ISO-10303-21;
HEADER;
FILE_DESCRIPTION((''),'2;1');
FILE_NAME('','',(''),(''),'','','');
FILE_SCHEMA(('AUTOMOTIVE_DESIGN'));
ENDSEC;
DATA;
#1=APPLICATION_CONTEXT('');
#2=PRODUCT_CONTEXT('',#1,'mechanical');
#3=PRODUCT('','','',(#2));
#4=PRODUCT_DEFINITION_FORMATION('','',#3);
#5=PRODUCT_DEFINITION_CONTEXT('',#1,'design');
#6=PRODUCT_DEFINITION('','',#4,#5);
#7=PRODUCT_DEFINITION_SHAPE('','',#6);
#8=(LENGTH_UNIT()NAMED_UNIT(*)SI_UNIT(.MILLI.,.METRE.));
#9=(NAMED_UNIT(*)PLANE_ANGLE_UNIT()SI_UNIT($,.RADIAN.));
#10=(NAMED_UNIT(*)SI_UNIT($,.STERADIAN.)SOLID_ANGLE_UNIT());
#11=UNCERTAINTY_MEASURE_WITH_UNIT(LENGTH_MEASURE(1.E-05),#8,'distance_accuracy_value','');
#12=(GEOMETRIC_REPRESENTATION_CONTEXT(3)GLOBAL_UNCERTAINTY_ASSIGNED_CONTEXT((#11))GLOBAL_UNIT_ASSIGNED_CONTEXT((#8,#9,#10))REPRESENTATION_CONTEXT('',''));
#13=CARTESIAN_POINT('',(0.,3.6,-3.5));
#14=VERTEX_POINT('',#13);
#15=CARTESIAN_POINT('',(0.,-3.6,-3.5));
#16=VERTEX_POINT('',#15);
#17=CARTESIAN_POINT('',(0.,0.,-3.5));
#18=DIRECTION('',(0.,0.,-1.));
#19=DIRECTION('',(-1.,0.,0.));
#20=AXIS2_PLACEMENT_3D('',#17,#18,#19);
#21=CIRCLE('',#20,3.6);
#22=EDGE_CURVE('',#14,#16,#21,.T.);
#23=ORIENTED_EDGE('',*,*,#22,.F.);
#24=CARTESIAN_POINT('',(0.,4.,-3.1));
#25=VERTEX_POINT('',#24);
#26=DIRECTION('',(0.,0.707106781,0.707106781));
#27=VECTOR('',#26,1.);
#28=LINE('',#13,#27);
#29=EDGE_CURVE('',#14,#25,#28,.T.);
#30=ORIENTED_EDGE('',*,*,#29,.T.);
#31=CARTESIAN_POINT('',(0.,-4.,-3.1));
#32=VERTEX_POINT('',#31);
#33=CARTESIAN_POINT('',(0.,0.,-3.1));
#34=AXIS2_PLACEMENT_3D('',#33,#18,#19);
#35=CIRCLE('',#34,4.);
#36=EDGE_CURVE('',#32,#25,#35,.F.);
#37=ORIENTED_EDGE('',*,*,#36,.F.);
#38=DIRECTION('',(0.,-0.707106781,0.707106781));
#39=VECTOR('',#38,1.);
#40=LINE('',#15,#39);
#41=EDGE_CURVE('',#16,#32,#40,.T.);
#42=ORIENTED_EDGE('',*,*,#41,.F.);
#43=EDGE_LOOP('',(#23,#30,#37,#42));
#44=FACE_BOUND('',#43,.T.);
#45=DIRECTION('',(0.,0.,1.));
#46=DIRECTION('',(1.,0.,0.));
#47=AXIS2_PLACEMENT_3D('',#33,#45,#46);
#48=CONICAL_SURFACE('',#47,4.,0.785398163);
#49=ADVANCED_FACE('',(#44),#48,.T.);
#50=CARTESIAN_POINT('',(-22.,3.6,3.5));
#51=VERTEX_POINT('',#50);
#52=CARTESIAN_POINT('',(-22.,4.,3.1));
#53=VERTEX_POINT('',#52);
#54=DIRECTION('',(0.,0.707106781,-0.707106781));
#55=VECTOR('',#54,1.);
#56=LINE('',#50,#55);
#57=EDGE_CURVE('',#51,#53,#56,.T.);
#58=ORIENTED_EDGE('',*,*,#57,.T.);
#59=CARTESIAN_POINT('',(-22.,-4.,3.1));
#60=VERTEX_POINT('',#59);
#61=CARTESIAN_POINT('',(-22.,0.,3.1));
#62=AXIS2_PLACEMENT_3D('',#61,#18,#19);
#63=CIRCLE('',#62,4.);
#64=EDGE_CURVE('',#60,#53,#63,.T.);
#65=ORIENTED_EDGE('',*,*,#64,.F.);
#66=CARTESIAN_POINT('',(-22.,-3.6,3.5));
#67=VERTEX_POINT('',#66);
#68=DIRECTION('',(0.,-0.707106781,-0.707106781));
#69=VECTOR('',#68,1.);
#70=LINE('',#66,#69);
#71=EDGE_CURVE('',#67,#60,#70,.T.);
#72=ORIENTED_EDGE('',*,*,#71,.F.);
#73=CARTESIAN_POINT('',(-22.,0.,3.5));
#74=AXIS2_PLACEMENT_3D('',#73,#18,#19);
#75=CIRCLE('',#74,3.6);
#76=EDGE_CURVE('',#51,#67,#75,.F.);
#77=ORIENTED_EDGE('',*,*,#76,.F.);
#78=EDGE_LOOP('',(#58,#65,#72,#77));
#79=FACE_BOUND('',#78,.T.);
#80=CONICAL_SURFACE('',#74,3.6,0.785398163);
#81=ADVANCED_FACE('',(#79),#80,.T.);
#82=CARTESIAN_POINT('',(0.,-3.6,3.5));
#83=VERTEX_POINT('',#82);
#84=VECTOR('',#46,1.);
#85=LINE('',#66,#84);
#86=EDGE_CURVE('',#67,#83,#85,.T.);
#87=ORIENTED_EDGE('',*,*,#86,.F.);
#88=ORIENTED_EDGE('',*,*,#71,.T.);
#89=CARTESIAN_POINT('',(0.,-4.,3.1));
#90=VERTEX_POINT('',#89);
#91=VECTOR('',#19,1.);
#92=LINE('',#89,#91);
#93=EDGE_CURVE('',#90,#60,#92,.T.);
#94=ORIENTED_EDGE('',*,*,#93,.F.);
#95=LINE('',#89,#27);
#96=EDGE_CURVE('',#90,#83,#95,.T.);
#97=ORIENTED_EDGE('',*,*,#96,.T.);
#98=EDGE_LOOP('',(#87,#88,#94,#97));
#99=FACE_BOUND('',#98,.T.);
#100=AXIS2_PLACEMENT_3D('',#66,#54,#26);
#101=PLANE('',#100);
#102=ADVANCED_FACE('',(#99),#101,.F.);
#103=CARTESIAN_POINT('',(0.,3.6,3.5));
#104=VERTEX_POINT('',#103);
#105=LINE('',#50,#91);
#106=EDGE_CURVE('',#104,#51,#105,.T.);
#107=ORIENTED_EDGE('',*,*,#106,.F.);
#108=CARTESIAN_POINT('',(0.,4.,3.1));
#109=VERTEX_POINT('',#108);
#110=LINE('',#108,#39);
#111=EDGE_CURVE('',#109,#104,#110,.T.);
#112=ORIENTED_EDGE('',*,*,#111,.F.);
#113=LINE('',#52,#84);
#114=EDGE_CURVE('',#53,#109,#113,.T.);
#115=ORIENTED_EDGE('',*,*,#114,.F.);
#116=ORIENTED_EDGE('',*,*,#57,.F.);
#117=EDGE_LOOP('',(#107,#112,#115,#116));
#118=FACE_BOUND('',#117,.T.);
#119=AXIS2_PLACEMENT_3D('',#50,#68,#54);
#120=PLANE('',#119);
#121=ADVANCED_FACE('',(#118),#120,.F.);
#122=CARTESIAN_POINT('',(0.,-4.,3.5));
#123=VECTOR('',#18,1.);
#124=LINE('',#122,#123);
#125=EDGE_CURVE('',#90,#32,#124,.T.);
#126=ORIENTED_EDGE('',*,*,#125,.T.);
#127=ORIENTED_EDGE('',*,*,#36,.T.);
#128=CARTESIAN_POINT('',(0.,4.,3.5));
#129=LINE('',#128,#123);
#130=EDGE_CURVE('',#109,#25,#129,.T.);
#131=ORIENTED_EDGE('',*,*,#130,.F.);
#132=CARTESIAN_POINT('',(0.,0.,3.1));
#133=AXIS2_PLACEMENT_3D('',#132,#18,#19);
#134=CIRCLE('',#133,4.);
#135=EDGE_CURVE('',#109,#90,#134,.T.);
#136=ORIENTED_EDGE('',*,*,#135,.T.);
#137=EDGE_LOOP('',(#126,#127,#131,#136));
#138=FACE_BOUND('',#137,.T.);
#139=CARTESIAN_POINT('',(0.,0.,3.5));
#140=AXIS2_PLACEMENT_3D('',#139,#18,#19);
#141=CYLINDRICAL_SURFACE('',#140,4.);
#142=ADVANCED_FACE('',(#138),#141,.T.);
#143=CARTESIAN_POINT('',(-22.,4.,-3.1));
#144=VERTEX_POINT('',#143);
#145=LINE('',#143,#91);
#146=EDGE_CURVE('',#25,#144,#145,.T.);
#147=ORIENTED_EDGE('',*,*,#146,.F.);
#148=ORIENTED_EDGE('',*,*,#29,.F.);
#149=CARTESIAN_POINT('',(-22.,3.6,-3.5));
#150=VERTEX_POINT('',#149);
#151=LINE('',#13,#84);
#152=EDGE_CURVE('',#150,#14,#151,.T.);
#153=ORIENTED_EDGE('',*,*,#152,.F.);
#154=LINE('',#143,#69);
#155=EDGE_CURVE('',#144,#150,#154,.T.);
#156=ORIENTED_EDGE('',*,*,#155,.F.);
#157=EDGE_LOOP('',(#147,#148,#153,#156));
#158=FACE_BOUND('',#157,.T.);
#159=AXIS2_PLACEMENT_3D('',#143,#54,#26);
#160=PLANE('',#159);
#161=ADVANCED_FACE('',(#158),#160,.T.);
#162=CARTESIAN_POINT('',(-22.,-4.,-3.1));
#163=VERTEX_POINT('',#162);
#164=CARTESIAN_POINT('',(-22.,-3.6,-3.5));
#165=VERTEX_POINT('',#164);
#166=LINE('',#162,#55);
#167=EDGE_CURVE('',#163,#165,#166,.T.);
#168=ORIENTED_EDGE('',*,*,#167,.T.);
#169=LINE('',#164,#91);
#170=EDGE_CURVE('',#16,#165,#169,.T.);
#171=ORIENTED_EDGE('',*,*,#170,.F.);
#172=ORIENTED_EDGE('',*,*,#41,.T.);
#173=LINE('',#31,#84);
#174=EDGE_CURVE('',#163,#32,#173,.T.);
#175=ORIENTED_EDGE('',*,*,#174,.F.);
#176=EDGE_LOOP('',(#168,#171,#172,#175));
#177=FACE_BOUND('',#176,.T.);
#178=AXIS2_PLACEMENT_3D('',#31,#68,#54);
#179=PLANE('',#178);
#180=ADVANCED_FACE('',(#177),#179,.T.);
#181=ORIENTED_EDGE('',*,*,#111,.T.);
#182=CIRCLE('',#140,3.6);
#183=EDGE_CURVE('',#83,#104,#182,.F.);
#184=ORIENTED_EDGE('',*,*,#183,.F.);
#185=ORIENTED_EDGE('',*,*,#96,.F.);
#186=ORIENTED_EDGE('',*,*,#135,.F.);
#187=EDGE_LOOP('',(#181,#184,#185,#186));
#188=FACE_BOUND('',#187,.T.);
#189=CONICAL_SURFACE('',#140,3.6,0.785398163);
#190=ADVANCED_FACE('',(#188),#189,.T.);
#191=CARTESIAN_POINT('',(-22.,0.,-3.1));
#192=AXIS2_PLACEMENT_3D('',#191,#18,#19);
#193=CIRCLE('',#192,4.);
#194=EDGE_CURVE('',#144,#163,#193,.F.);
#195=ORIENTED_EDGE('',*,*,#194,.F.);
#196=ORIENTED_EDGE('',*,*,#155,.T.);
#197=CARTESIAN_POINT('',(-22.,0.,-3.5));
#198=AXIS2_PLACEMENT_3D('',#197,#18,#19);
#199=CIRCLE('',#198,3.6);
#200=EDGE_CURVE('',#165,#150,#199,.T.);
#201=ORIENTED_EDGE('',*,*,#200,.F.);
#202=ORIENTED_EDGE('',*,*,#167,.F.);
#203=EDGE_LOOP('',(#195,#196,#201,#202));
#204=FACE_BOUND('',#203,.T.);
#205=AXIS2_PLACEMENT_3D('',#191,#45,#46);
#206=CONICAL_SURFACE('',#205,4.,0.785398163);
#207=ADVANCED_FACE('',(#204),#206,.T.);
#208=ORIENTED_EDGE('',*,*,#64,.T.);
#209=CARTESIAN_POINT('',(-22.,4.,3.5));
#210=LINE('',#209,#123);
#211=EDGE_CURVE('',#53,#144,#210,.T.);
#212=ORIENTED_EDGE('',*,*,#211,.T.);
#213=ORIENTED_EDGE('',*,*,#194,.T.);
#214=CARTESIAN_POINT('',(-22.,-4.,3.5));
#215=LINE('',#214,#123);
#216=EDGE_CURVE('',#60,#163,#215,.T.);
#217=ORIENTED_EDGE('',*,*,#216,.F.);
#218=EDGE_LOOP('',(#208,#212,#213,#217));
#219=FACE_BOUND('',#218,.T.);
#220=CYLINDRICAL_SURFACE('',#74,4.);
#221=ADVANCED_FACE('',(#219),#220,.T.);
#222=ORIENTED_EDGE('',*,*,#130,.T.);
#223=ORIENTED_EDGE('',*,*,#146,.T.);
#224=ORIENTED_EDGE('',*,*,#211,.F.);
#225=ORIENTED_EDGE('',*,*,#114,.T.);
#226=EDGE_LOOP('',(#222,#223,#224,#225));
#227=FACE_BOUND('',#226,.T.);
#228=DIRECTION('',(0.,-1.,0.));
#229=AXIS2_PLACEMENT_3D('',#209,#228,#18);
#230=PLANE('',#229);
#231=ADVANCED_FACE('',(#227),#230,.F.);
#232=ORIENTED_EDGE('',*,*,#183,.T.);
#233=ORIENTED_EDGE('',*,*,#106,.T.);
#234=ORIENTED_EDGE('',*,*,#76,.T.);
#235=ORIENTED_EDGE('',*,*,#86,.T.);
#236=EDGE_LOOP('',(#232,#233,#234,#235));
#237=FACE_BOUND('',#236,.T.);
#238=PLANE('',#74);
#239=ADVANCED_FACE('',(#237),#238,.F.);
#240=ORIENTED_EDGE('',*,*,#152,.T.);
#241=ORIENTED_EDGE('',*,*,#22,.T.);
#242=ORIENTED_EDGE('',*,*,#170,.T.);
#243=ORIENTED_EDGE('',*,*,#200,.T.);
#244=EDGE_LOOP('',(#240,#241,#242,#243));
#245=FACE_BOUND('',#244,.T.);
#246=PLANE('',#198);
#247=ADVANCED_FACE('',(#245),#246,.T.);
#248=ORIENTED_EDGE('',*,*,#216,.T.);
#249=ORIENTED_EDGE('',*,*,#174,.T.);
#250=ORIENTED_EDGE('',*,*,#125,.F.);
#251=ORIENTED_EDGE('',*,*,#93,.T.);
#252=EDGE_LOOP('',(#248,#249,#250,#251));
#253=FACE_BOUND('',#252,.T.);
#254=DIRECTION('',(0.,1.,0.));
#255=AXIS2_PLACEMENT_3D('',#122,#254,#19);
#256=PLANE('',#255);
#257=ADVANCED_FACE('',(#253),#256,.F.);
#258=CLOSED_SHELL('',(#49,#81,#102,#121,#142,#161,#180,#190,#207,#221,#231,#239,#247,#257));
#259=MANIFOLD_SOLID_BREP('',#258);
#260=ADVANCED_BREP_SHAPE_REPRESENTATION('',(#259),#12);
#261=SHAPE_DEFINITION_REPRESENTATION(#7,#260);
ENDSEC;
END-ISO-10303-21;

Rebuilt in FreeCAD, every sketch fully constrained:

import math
import FreeCAD as App
import Part
import Sketcher
from FreeCAD import Vector
Q = App.Units.Quantity


def edges_at(feature, points):
    """Names of the edges that pass closest to the given points."""
    edges = feature.Shape.Edges
    near = lambda p: min(range(len(edges)), key=lambda i: edges[i].distToShape(Part.Vertex(*p))[0])
    return sorted({f"Edge{near(p) + 1}" for p in points})

doc = App.newDocument("Part")
body = doc.addObject("PartDesign::Body", "Body")

sketch1 = body.newObject("Sketcher::SketchObject", "Sketch")
sketch1.AttachmentSupport = (doc.getObject("XY_Plane"), [""])
sketch1.MapMode = "FlatFace"
sketch1.addGeometry(Part.LineSegment(Vector(0, 4, 0), Vector(-22, 4, 0)), False)
sketch1.addGeometry(Part.ArcOfCircle(Part.Circle(Vector(-22, 0, 0), Vector(0, 0, 1), 4), math.radians(90), math.radians(270)), False)
sketch1.addGeometry(Part.LineSegment(Vector(-22, -4, 0), Vector(0, -4, 0)), False)
sketch1.addGeometry(Part.ArcOfCircle(Part.Circle(Vector(0, 0, 0), Vector(0, 0, 1), 4), math.radians(-90), math.radians(90)), False)
sketch1.addConstraint(Sketcher.Constraint("Tangent", 0, 2, 1, 1))
sketch1.addConstraint(Sketcher.Constraint("Tangent", 1, 2, 2, 1))
sketch1.addConstraint(Sketcher.Constraint("Tangent", 2, 2, 3, 1))
sketch1.addConstraint(Sketcher.Constraint("Tangent", 3, 2, 0, 1))
sketch1.addConstraint(Sketcher.Constraint("Horizontal", 0))
sketch1.addConstraint(Sketcher.Constraint("Horizontal", 2))
sketch1.addConstraint(Sketcher.Constraint("Coincident", 3, 3, -1, 1))
sketch1.addConstraint(Sketcher.Constraint("Radius", 1, Q("4 mm")))
sketch1.addConstraint(Sketcher.Constraint("DistanceX", 0, 2, 0, 1, Q("22 mm")))
pad1 = body.newObject("PartDesign::Pad", "Pad")
pad1.Profile = sketch1
pad1.Length = 7
pad1.Midplane = True
doc.recompute()

chamfer = body.newObject("PartDesign::Chamfer", "Chamfer")
chamfer.Base = (pad1, edges_at(pad1, [
    (4, 0, 3.5),
    (-11, 4, 3.5),
    (-26, 0, 3.5),
    (-11, 4, -3.5),
    (4, 0, -3.5),
    (-11, -4, -3.5),
    (-26, 0, -3.5),
    (-11, -4, 3.5),
]))
chamfer.Size = 0.4

doc.recompute()
